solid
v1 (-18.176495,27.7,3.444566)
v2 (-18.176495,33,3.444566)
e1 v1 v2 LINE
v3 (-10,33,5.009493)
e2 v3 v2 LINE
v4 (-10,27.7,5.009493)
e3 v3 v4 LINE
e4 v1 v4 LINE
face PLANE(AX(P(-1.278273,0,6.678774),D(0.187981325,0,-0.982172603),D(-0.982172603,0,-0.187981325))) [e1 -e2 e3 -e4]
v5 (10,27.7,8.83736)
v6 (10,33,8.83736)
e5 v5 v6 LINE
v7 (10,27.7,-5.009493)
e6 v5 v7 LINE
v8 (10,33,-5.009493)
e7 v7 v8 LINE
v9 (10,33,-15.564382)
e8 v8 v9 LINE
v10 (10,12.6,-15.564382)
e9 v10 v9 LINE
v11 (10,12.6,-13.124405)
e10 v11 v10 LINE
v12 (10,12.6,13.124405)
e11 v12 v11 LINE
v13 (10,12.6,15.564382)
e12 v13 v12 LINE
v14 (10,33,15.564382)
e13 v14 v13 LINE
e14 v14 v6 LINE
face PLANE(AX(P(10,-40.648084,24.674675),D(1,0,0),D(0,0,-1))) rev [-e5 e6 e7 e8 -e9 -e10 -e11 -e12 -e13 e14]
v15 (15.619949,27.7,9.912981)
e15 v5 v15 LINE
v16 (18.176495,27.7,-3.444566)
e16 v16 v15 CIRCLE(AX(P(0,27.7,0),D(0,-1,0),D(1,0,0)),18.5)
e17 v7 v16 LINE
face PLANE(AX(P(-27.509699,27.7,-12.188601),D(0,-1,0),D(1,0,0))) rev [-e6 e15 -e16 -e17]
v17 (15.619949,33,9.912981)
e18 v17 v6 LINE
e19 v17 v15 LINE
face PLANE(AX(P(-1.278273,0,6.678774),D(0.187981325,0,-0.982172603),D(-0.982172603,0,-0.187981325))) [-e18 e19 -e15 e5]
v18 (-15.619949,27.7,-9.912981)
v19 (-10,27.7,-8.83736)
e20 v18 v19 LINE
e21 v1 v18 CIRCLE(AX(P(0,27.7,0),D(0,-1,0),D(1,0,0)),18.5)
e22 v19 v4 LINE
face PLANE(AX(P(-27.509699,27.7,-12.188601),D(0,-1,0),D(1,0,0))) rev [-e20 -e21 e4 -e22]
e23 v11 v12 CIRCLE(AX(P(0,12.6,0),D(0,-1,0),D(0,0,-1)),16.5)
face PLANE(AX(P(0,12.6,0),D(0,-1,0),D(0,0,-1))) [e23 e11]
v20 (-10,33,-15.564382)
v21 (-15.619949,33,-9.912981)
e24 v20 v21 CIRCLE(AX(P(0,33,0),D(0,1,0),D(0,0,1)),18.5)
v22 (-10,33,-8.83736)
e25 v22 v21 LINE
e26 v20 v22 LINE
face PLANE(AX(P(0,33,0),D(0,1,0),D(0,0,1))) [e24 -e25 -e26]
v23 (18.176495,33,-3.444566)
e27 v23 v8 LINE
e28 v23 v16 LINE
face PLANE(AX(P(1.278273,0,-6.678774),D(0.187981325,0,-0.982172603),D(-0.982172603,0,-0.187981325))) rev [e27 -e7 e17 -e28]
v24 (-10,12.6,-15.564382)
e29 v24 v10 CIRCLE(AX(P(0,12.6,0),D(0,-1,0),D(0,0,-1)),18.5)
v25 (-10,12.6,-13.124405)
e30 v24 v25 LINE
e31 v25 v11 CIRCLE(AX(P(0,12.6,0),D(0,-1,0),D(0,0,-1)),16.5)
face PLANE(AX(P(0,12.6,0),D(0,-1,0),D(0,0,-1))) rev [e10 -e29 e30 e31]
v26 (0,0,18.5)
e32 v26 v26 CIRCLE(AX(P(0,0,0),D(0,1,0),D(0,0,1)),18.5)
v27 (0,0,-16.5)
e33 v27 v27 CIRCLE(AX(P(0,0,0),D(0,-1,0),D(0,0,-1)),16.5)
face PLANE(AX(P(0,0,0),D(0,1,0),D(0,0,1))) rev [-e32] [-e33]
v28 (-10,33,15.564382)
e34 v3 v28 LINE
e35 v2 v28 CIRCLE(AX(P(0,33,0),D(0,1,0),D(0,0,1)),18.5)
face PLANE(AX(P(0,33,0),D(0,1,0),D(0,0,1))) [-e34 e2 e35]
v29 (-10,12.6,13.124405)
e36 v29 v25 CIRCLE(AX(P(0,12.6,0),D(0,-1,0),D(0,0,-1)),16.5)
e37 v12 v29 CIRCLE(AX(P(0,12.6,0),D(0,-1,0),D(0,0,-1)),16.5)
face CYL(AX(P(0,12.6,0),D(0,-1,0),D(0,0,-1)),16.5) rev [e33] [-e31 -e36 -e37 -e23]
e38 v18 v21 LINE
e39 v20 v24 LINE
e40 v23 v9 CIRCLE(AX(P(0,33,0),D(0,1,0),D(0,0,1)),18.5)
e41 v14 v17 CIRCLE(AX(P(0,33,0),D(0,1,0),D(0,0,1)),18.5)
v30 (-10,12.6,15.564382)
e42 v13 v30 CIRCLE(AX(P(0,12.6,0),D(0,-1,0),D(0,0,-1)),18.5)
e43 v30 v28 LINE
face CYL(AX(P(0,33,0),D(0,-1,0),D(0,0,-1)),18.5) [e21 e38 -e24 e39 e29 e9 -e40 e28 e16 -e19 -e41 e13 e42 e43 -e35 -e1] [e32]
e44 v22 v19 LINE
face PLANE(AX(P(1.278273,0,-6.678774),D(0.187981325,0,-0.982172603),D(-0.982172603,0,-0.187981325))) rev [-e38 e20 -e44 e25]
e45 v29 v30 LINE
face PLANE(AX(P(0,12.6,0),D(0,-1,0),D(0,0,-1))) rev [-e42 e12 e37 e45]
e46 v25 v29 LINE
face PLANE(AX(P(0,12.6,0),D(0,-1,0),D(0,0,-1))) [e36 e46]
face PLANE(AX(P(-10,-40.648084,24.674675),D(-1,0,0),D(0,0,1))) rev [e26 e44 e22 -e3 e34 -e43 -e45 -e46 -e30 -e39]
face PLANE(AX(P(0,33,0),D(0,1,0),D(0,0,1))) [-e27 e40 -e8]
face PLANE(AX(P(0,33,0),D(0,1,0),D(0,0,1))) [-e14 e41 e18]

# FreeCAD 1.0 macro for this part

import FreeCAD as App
import Part
import Sketcher

V = App.Vector
Q = App.Units.Quantity


def add_polygon(sketch, points):
    """Adds a closed chain of lines whose ends are joined by coincident constraints."""
    first, n = sketch.GeometryCount, len(points)
    for a, b in zip(points, points[1:] + points[:1]):
        sketch.addGeometry(Part.LineSegment(App.Vector(*a, 0), App.Vector(*b, 0)), False)
    for i in range(n):
        sketch.addConstraint(Sketcher.Constraint("Coincident", first + i, 2, first + (i + 1) % n, 1))

doc = App.newDocument("Part")
body = doc.addObject("PartDesign::Body", "Body")

sketch1 = body.newObject("Sketcher::SketchObject", "Sketch")
sketch1.AttachmentSupport = (doc.getObject("XZ_Plane"), [""])
sketch1.MapMode = "FlatFace"
sketch1.addGeometry(Part.Circle(V(0, 0, 0), V(0, 0, 1), 18.5), False)
sketch1.addConstraint([
    Sketcher.Constraint("Coincident", 0, 3, -1, 1),
    Sketcher.Constraint("Diameter", 0, Q("37 mm")),
])
pad1 = body.newObject("PartDesign::Pad", "Pad")
pad1.Profile = sketch1
pad1.Length = 33
pad1.Reversed = True

sketch2 = body.newObject("Sketcher::SketchObject", "Sketch001")
sketch2.AttachmentSupport = (doc.getObject("XZ_Plane"), [""])
sketch2.MapMode = "FlatFace"
sketch2.addGeometry(Part.Circle(V(0, 0, 0), V(0, 0, 1), 16.5), False)
sketch2.addConstraint([
    Sketcher.Constraint("Coincident", 0, 3, -1, 1),
    Sketcher.Constraint("Diameter", 0, Q("33 mm")),
])
pocket1 = body.newObject("PartDesign::Pocket", "Pocket")
pocket1.Profile = sketch2
pocket1.Length = 12.6

sketch3 = body.newObject("Sketcher::SketchObject", "Sketch002")
sketch3.AttachmentSupport = (doc.getObject("XZ_Plane"), [""])
sketch3.MapMode = "FlatFace"
sketch3.AttachmentOffset = App.Placement(V(0, 0, -33), App.Rotation())
add_polygon(sketch3, [(-10, -24.674675), (-10, 24.674675), (10, 24.674675), (10, -24.674675)])
sketch3.addConstraint([
    Sketcher.Constraint("Vertical", 0),
    Sketcher.Constraint("Horizontal", 1),
    Sketcher.Constraint("Vertical", 2),
    Sketcher.Constraint("Horizontal", 3),
    Sketcher.Constraint("Symmetric", 0, 2, 2, 2, -1, 1),
    Sketcher.Constraint("DistanceX", 1, 1, 1, 2, Q("20 mm")),
    Sketcher.Constraint("DistanceY", 0, 1, 0, 2, Q("49.349351 mm")),
])
pocket2 = body.newObject("PartDesign::Pocket", "Pocket001")
pocket2.Profile = sketch3
pocket2.Length = 20.4
pocket2.Reversed = True

sketch4 = body.newObject("Sketcher::SketchObject", "Sketch003")
sketch4.Placement = App.Placement(V(0, 0, 0), App.Rotation(V(0.982172603, 0, 0.187981325), V(0, 1.000000001, 0), V(-0.187981325, 0, 0.982172603), "ZXY"))
add_polygon(sketch4, [(-29.310502, 34.736761), (-29.310502, 27.7), (27.192291, 27.7), (27.192291, 34.736761)])
sketch4.addConstraint([
    Sketcher.Constraint("Vertical", 0),
    Sketcher.Constraint("Horizontal", 1),
    Sketcher.Constraint("Vertical", 2),
    Sketcher.Constraint("Horizontal", 3),
    Sketcher.Constraint("DistanceY", -1, 1, 0, 2, Q("27.7 mm")),
    Sketcher.Constraint("DistanceY", 0, 2, 0, 1, Q("7.036761 mm")),
    Sketcher.Constraint("DistanceX", 0, 2, -1, 1, Q("29.310502 mm")),
    Sketcher.Constraint("DistanceX", 1, 1, 1, 2, Q("56.502792 mm")),
])
pocket3 = body.newObject("PartDesign::Pocket", "Pocket002")
pocket3.Profile = sketch4
pocket3.Length = 13.6
pocket3.Midplane = True

doc.recompute()
